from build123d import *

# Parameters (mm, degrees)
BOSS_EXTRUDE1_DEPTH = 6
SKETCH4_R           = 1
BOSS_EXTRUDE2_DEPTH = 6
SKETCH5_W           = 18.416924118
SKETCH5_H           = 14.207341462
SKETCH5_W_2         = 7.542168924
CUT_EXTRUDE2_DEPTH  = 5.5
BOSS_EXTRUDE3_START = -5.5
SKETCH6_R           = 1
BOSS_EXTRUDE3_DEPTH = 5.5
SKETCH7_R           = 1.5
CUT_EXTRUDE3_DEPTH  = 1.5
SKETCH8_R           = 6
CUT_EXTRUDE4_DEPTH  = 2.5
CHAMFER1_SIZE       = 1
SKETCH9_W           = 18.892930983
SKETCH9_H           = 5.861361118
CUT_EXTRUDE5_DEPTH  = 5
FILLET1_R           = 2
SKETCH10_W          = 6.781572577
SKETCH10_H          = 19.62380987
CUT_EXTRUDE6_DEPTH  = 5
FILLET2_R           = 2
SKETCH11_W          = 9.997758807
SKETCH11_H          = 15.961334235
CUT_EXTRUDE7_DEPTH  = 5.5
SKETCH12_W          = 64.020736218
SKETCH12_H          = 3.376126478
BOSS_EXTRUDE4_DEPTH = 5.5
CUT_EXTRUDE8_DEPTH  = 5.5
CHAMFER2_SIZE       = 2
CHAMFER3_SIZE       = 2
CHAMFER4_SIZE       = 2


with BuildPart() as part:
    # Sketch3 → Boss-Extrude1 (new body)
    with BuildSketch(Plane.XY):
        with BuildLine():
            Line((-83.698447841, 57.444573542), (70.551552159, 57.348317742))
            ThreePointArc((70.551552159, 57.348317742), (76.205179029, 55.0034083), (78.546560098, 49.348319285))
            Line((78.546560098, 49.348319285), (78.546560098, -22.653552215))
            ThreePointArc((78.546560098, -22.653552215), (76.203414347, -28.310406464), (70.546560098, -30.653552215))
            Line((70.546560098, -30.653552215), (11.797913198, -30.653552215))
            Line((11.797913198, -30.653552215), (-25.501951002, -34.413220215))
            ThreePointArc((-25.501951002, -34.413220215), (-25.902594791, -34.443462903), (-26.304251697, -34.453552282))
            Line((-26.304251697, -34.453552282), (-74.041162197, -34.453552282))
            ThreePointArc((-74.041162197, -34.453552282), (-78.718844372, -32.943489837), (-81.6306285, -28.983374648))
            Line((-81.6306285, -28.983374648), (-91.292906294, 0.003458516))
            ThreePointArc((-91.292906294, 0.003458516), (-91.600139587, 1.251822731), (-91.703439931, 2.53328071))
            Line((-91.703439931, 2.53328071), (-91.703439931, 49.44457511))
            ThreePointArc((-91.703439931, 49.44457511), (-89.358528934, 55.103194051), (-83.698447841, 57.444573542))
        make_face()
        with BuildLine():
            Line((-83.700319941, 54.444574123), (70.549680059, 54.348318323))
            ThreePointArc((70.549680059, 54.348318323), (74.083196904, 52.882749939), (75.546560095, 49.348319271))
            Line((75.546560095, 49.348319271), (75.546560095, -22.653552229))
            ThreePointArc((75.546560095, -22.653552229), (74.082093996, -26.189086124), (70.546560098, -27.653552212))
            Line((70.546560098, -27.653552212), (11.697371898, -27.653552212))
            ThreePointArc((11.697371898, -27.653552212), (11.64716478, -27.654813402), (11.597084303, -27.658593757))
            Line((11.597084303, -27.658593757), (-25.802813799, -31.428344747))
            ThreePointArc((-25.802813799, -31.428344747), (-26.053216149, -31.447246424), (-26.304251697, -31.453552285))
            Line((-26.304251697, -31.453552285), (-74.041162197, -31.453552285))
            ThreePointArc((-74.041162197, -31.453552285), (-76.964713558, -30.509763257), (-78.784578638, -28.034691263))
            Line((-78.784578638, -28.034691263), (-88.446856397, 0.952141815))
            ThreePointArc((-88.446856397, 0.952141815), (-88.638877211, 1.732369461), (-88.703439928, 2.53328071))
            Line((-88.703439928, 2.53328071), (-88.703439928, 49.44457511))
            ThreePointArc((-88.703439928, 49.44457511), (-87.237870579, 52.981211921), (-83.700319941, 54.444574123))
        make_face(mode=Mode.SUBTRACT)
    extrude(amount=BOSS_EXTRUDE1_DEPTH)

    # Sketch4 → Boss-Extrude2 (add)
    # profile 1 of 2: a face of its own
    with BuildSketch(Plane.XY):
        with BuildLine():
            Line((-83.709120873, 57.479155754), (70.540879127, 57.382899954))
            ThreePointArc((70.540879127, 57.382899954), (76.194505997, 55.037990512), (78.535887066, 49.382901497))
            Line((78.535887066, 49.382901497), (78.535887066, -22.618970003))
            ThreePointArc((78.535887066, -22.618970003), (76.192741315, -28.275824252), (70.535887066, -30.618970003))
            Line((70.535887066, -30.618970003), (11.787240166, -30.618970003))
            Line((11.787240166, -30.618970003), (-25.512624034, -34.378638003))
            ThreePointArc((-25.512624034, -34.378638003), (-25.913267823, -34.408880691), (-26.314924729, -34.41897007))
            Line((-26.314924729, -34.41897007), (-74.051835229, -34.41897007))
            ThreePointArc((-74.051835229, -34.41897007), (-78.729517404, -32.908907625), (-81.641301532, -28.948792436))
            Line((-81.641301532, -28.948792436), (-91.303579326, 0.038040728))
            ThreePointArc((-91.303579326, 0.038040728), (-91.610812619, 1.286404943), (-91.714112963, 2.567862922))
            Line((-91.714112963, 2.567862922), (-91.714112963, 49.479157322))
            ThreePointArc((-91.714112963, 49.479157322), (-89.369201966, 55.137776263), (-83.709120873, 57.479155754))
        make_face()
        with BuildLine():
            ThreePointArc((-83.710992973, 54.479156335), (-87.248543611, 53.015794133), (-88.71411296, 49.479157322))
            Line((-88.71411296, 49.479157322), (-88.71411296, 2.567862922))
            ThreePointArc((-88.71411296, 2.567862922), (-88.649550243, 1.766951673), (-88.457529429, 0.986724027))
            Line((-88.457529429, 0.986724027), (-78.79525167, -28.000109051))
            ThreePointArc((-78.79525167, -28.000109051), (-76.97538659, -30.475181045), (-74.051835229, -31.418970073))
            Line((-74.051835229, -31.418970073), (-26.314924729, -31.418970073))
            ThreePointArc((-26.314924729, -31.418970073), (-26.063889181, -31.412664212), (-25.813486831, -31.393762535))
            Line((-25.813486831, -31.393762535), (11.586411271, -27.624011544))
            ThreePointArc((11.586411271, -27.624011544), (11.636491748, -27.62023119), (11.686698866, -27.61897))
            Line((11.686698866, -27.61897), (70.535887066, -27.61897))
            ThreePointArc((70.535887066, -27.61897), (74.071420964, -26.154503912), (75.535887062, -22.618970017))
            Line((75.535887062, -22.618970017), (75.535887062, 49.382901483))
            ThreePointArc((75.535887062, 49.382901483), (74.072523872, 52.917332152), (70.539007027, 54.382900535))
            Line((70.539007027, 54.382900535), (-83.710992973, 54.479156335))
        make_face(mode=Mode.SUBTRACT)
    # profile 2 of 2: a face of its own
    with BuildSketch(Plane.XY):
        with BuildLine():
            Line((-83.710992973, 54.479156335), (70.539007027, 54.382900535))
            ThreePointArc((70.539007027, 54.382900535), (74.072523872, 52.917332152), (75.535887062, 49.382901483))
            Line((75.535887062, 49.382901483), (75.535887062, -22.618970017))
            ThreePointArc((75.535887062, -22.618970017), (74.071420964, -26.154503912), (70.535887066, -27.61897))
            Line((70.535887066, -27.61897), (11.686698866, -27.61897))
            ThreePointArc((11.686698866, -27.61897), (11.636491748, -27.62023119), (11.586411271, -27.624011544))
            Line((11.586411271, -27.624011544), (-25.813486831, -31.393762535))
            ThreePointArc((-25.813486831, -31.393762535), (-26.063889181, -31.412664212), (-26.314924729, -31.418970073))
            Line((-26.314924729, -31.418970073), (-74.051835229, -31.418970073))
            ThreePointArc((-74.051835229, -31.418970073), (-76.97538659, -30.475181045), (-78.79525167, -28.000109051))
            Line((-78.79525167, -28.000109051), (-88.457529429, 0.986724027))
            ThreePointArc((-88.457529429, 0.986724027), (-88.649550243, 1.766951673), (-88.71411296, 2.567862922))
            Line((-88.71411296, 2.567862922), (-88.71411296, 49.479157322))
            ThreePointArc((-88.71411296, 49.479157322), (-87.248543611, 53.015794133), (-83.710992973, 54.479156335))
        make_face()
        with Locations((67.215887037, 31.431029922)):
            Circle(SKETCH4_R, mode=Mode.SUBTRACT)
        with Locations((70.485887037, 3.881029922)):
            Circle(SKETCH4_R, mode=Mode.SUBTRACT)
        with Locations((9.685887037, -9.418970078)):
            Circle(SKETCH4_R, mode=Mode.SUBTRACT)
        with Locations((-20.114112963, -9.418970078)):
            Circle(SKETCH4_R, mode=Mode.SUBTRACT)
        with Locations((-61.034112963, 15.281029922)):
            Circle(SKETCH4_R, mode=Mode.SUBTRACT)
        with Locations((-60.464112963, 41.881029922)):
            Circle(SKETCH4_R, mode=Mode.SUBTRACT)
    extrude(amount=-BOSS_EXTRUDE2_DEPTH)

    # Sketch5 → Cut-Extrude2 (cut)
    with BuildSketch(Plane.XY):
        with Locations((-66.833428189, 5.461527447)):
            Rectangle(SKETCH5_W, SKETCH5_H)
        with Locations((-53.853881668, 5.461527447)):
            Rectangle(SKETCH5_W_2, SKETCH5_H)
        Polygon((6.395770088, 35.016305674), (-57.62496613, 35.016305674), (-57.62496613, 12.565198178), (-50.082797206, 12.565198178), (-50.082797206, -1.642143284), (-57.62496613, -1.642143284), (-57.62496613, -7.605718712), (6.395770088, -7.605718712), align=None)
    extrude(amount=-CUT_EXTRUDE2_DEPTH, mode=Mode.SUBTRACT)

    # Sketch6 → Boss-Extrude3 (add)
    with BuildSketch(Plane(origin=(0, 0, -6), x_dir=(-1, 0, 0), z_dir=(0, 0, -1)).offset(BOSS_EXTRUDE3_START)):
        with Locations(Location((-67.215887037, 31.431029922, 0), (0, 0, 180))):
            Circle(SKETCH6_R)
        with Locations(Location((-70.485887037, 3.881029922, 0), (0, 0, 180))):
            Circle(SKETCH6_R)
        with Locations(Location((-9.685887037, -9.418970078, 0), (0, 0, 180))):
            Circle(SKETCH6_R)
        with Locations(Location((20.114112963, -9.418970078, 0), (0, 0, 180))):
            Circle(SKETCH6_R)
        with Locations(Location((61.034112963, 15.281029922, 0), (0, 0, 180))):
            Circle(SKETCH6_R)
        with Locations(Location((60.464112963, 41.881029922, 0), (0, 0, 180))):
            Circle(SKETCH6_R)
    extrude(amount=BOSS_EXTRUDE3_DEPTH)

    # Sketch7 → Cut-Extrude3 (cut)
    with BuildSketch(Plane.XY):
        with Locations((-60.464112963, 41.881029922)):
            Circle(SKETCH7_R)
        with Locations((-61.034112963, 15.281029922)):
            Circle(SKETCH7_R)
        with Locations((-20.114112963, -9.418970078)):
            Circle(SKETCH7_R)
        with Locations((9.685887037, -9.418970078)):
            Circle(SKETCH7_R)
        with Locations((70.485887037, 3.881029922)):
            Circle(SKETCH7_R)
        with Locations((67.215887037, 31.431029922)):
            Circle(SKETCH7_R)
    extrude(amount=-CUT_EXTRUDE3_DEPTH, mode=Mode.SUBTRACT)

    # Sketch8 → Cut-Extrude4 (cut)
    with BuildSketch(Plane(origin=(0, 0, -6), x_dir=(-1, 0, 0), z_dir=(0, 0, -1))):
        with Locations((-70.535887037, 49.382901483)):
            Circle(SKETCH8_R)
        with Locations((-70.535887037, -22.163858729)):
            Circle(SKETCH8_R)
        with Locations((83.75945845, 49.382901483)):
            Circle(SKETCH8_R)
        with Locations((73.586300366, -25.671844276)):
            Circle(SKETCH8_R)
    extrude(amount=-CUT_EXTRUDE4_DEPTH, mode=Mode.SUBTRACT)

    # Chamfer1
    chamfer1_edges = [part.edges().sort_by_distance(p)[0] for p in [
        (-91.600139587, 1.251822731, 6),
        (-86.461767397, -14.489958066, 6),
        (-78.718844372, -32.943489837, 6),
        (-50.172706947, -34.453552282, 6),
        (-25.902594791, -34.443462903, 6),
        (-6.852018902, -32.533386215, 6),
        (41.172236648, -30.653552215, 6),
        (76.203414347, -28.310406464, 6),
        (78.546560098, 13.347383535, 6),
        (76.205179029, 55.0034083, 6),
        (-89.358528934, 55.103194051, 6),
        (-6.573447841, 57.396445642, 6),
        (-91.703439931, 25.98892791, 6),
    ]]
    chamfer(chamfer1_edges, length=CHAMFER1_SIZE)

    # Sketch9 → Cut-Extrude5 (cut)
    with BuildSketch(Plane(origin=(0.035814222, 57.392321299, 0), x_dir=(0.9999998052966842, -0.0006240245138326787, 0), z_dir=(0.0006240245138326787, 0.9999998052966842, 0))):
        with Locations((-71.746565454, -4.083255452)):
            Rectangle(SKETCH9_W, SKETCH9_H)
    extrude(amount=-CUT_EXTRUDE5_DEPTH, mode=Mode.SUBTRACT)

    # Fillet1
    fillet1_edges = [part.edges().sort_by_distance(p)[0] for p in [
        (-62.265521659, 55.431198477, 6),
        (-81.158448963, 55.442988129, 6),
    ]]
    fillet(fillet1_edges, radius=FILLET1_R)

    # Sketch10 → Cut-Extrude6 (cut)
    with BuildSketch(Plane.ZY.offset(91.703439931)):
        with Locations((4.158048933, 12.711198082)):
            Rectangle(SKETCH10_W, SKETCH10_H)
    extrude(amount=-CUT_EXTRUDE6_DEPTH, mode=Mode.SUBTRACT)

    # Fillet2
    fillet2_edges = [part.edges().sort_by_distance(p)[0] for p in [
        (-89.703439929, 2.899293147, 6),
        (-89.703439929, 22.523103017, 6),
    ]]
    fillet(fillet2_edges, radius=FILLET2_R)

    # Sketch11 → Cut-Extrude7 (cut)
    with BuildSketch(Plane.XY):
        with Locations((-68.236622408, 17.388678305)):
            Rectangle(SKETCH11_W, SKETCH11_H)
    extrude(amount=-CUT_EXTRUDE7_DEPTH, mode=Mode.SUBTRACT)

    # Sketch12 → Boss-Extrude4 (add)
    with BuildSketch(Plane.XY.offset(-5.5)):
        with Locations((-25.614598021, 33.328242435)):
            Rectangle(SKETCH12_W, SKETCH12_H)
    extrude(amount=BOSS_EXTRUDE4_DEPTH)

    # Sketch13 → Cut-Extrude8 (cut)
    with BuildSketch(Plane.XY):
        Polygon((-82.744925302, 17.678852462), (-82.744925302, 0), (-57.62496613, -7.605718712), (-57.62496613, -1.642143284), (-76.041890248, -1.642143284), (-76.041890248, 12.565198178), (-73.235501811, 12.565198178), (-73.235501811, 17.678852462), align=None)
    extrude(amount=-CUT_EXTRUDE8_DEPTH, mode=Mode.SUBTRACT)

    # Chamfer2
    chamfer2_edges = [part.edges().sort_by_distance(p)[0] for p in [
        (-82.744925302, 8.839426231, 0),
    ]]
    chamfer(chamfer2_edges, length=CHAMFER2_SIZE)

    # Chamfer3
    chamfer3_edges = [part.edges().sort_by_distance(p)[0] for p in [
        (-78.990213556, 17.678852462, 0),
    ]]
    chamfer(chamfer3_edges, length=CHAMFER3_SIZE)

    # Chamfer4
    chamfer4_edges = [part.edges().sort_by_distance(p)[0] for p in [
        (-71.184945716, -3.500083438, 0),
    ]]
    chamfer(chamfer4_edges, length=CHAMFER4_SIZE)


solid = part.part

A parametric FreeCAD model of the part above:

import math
import FreeCAD as App
import Part
import Sketcher
from FreeCAD import Vector
Q = App.Units.Quantity


def edges_at(feature, points):
    """Names of the edges that pass closest to the given points."""
    edges = feature.Shape.Edges
    near = lambda p: min(range(len(edges)), key=lambda i: edges[i].distToShape(Part.Vertex(*p))[0])
    return sorted({f"Edge{near(p) + 1}" for p in points})


def add_polygon(sketch, points):
    """Adds a closed chain of lines whose ends are joined by coincident constraints."""
    first, n = sketch.GeometryCount, len(points)
    for a, b in zip(points, points[1:] + points[:1]):
        sketch.addGeometry(Part.LineSegment(App.Vector(*a, 0), App.Vector(*b, 0)), False)
    for i in range(n):
        sketch.addConstraint(Sketcher.Constraint("Coincident", first + i, 2, first + (i + 1) % n, 1))

doc = App.newDocument("Part")
params = doc.addObject("Spreadsheet::Sheet", "Params")
for row, (alias, value) in enumerate([
    ("sketch1_radius", "8 mm"),
    ("sketch1_radius2", "5 mm"),
    ("sketch1_radius3", "1 mm"),
    ("pad1_length", "6 mm"),
    ("sketch2_diameter", "2 mm"),
    ("sketch2_radius", "8 mm"),
    ("pad2_length", "6 mm"),
    ("pocket1_length", "5.5 mm"),
    ("sketch4_diameter", "2 mm"),
    ("pad3_length", "5.5 mm"),
    ("sketch5_diameter", "3 mm"),
    ("pocket2_length", "1.5 mm"),
    ("sketch6_diameter", "12 mm"),
    ("pocket3_length", "2.5 mm"),
    ("chamfer_size", "1 mm"),
    ("pocket4_length", "5 mm"),
    ("fillet_radius", "2 mm"),
    ("pocket5_length", "5 mm"),
    ("fillet2_radius", "2 mm"),
    ("pocket6_length", "5.5 mm"),
    ("pad4_length", "5.5 mm"),
    ("pocket7_length", "5.5 mm"),
    ("chamfer2_size", "2 mm"),
    ("chamfer3_size", "2 mm"),
    ("chamfer4_size", "2 mm"),
], start=1):
    params.set(f"A{row}", alias)
    params.set(f"B{row}", "=" + value)
    params.setAlias(f"B{row}", alias)

body = doc.addObject("PartDesign::Body", "Body")

# Sketch on XY plane
sketch1 = body.newObject("Sketcher::SketchObject", "Sketch")
sketch1.AttachmentSupport = (doc.getObject("XY_Plane"), [""])
sketch1.MapMode = "FlatFace"
sketch1.addGeometry(Part.LineSegment(Vector(70.551552, 57.348318, 0), Vector(-83.698448, 57.444574, 0)), False)
sketch1.addGeometry(Part.ArcOfCircle(Part.Circle(Vector(-83.70344, 49.444575, 0), Vector(0, 0, 1), 8), math.radians(89.964247), math.radians(180)), False)
sketch1.addGeometry(Part.LineSegment(Vector(-91.70344, 49.444575, 0), Vector(-91.70344, 2.533281, 0)), False)
sketch1.addGeometry(Part.ArcOfCircle(Part.Circle(Vector(-83.70344, 2.533281, 0), Vector(0, 0, 1), 8), math.radians(180), math.radians(198.434949)), False)
sketch1.addGeometry(Part.LineSegment(Vector(-91.292906, 0.003459, 0), Vector(-81.630629, -28.983375, 0)), False)
sketch1.addGeometry(Part.ArcOfCircle(Part.Circle(Vector(-74.041162, -26.453552, 0), Vector(0, 0, 1), 8), math.radians(-161.565049), math.radians(-90)), False)
sketch1.addGeometry(Part.LineSegment(Vector(-74.041162, -34.453552, 0), Vector(-26.304252, -34.453552, 0)), False)
sketch1.addGeometry(Part.ArcOfCircle(Part.Circle(Vector(-26.304252, -26.453552, 0), Vector(0, 0, 1), 8), math.radians(-90), math.radians(-84.244269)), False)
sketch1.addGeometry(Part.LineSegment(Vector(-25.501951, -34.41322, 0), Vector(11.797913, -30.653552, 0)), False)
sketch1.addGeometry(Part.LineSegment(Vector(11.797913, -30.653552, 0), Vector(70.54656, -30.653552, 0)), False)
sketch1.addGeometry(Part.ArcOfCircle(Part.Circle(Vector(70.54656, -22.653552, 0), Vector(0, 0, 1), 8), math.radians(-90), math.radians(0)), False)
sketch1.addGeometry(Part.LineSegment(Vector(78.54656, -22.653552, 0), Vector(78.54656, 49.348319, 0)), False)
sketch1.addGeometry(Part.ArcOfCircle(Part.Circle(Vector(70.54656, 49.348319, 0), Vector(0, 0, 1), 8), math.radians(0), math.radians(89.964247)), False)
sketch1.addGeometry(Part.LineSegment(Vector(-83.70032, 54.444574, 0), Vector(70.54968, 54.348318, 0)), False)
sketch1.addGeometry(Part.ArcOfCircle(Part.Circle(Vector(70.54656, 49.348319, 0), Vector(0, 0, 1), 5), math.radians(0), math.radians(89.964248)), False)
sketch1.addGeometry(Part.LineSegment(Vector(75.54656, 49.348319, 0), Vector(75.54656, -22.653552, 0)), False)
sketch1.addGeometry(Part.ArcOfCircle(Part.Circle(Vector(70.54656, -22.653552, 0), Vector(0, 0, 1), 5), math.radians(-90), math.radians(0)), False)
sketch1.addGeometry(Part.LineSegment(Vector(70.54656, -27.653552, 0), Vector(11.697372, -27.653552, 0)), False)
sketch1.addGeometry(Part.ArcOfCircle(Part.Circle(Vector(11.697372, -28.653552, 0), Vector(0, 0, 1), 1), math.radians(90.000019), math.radians(95.755753)), False)
sketch1.addGeometry(Part.LineSegment(Vector(11.597084, -27.658594, 0), Vector(-25.802814, -31.428345, 0)), False)
sketch1.addGeometry(Part.ArcOfCircle(Part.Circle(Vector(-26.304252, -26.453552, 0), Vector(0, 0, 1), 5), math.radians(-90), math.radians(-84.244269)), False)
sketch1.addGeometry(Part.LineSegment(Vector(-26.304252, -31.453552, 0), Vector(-74.041162, -31.453552, 0)), False)
sketch1.addGeometry(Part.ArcOfCircle(Part.Circle(Vector(-74.041162, -26.453552, 0), Vector(0, 0, 1), 5), math.radians(-161.565049), math.radians(-90)), False)
sketch1.addGeometry(Part.LineSegment(Vector(-78.784579, -28.034691, 0), Vector(-88.446856, 0.952142, 0)), False)
sketch1.addGeometry(Part.ArcOfCircle(Part.Circle(Vector(-83.70344, 2.533281, 0), Vector(0, 0, 1), 5), math.radians(180), math.radians(198.43495)), False)
sketch1.addGeometry(Part.LineSegment(Vector(-88.70344, 2.533281, 0), Vector(-88.70344, 49.444575, 0)), False)
sketch1.addGeometry(Part.ArcOfCircle(Part.Circle(Vector(-83.70344, 49.444575, 0), Vector(0, 0, 1), 5), math.radians(89.964247), math.radians(180)), False)
sketch1.addConstraint(Sketcher.Constraint("Tangent", 0, 2, 1, 1))
sketch1.addConstraint(Sketcher.Constraint("Tangent", 1, 2, 2, 1))
sketch1.addConstraint(Sketcher.Constraint("Tangent", 2, 2, 3, 1))
sketch1.addConstraint(Sketcher.Constraint("Tangent", 3, 2, 4, 1))
sketch1.addConstraint(Sketcher.Constraint("Tangent", 4, 2, 5, 1))
sketch1.addConstraint(Sketcher.Constraint("Tangent", 5, 2, 6, 1))
sketch1.addConstraint(Sketcher.Constraint("Tangent", 6, 2, 7, 1))
sketch1.addConstraint(Sketcher.Constraint("Tangent", 7, 2, 8, 1))
sketch1.addConstraint(Sketcher.Constraint("Coincident", 8, 2, 9, 1))
sketch1.addConstraint(Sketcher.Constraint("Tangent", 9, 2, 10, 1))
sketch1.addConstraint(Sketcher.Constraint("Tangent", 10, 2, 11, 1))
sketch1.addConstraint(Sketcher.Constraint("Tangent", 11, 2, 12, 1))
sketch1.addConstraint(Sketcher.Constraint("Tangent", 12, 2, 0, 1))
sketch1.addConstraint(Sketcher.Constraint("Tangent", 13, 2, 14, 2))
sketch1.addConstraint(Sketcher.Constraint("Tangent", 14, 1, 15, 1))
sketch1.addConstraint(Sketcher.Constraint("Tangent", 15, 2, 16, 2))
sketch1.addConstraint(Sketcher.Constraint("Tangent", 16, 1, 17, 1))
sketch1.addConstraint(Sketcher.Constraint("Tangent", 17, 2, 18, 1))
sketch1.addConstraint(Sketcher.Constraint("Tangent", 18, 2, 19, 1))
sketch1.addConstraint(Sketcher.Constraint("Tangent", 19, 2, 20, 2))
sketch1.addConstraint(Sketcher.Constraint("Tangent", 20, 1, 21, 1))
sketch1.addConstraint(Sketcher.Constraint("Tangent", 21, 2, 22, 2))
sketch1.addConstraint(Sketcher.Constraint("Tangent", 22, 1, 23, 1))
sketch1.addConstraint(Sketcher.Constraint("Tangent", 23, 2, 24, 2))
sketch1.addConstraint(Sketcher.Constraint("Tangent", 24, 1, 25, 1))
sketch1.addConstraint(Sketcher.Constraint("Tangent", 25, 2, 26, 2))
sketch1.addConstraint(Sketcher.Constraint("Tangent", 26, 1, 13, 1))
sketch1.addConstraint(Sketcher.Constraint("Vertical", 2))
sketch1.addConstraint(Sketcher.Constraint("Horizontal", 6))
sketch1.addConstraint(Sketcher.Constraint("Horizontal", 9))
sketch1.addConstraint(Sketcher.Constraint("Vertical", 11))
sketch1.addConstraint(Sketcher.Constraint("Vertical", 15))
sketch1.addConstraint(Sketcher.Constraint("Horizontal", 17))
sketch1.addConstraint(Sketcher.Constraint("Horizontal", 21))
sketch1.addConstraint(Sketcher.Constraint("Vertical", 25))
sketch1.addConstraint(Sketcher.Constraint("Coincident", 14, 3, 12, 3))
sketch1.addConstraint(Sketcher.Constraint("Coincident", 16, 3, 10, 3))
sketch1.addConstraint(Sketcher.Constraint("Coincident", 20, 3, 7, 3))
sketch1.addConstraint(Sketcher.Constraint("Coincident", 22, 3, 5, 3))
sketch1.addConstraint(Sketcher.Constraint("Coincident", 24, 3, 3, 3))
sketch1.addConstraint(Sketcher.Constraint("Coincident", 26, 3, 1, 3))
sketch1.addConstraint(Sketcher.Constraint("Equal", 1, 3))
sketch1.addConstraint(Sketcher.Constraint("Equal", 3, 5))
sketch1.addConstraint(Sketcher.Constraint("Equal", 5, 7))
sketch1.addConstraint(Sketcher.Constraint("Equal", 7, 10))
sketch1.addConstraint(Sketcher.Constraint("Equal", 10, 12))
sketch1.addConstraint(Sketcher.Constraint("Equal", 16, 20))
sketch1.addConstraint(Sketcher.Constraint("Equal", 22, 24))
sketch1.addConstraint(Sketcher.Constraint("Parallel", 8, 19))
sketch1.addConstraint(Sketcher.Constraint("Radius", 1, Q("8 mm")))
sketch1.addConstraint(Sketcher.Constraint("Radius", 14, Q("5 mm")))
sketch1.addConstraint(Sketcher.Constraint("Radius", 18, Q("1 mm")))
sketch1.addConstraint(Sketcher.Constraint("DistanceY", 7, 3, 10, 3, Q("3.8 mm")))
sketch1.addConstraint(Sketcher.Constraint("DistanceX", 3, 3, 10, 3, Q("154.25 mm")))
sketch1.addConstraint(Sketcher.Constraint("DistanceX", 6, 1, 6, 2, Q("47.736911 mm")))
sketch1.addConstraint(Sketcher.Constraint("DistanceX", 17, 2, 17, 1, Q("58.849188 mm")))
sketch1.addConstraint(Sketcher.Constraint("DistanceY", 11, 1, 11, 2, Q("72.001872 mm")))
sketch1.addConstraint(Sketcher.Constraint("DistanceX", 19, 2, 18, 2, Q("37.399898 mm")))
sketch1.addConstraint(Sketcher.Constraint("DistanceY", 2, 2, 2, 1, Q("46.911294 mm")))
sketch1.addConstraint(Sketcher.Constraint("DistanceX", 1, 3, -1, 1, Q("83.70344 mm")))
sketch1.addConstraint(Sketcher.Constraint("DistanceY", -1, 1, 3, 3, Q("2.533281 mm")))
sketch1.addConstraint(Sketcher.Constraint("DistanceY", -1, 1, 12, 3, Q("49.348319 mm")))
sketch1.setExpression("Constraints[49]", "Params.sketch1_radius")
sketch1.setExpression("Constraints[50]", "Params.sketch1_radius2")
sketch1.setExpression("Constraints[51]", "Params.sketch1_radius3")
pad1 = body.newObject("PartDesign::Pad", "Pad")
pad1.Profile = sketch1
pad1.setExpression("Length", "Params.pad1_length")

# Sketch on XY plane
sketch2 = body.newObject("Sketcher::SketchObject", "Sketch001")
sketch2.AttachmentSupport = (doc.getObject("XY_Plane"), [""])
sketch2.MapMode = "FlatFace"
sketch2.addGeometry(Part.LineSegment(Vector(70.540879, 57.3829, 0), Vector(-83.709121, 57.479156, 0)), False)
sketch2.addGeometry(Part.ArcOfCircle(Part.Circle(Vector(-83.714113, 49.479157, 0), Vector(0, 0, 1), 8), math.radians(89.964247), math.radians(180)), False)
sketch2.addGeometry(Part.LineSegment(Vector(-91.714113, 49.479157, 0), Vector(-91.714113, 2.567863, 0)), False)
sketch2.addGeometry(Part.ArcOfCircle(Part.Circle(Vector(-83.714113, 2.567863, 0), Vector(0, 0, 1), 8), math.radians(180), math.radians(198.434949)), False)
sketch2.addGeometry(Part.LineSegment(Vector(-91.303579, 0.038041, 0), Vector(-81.641302, -28.948792, 0)), False)
sketch2.addGeometry(Part.ArcOfCircle(Part.Circle(Vector(-74.051835, -26.41897, 0), Vector(0, 0, 1), 8), math.radians(-161.565049), math.radians(-90)), False)
sketch2.addGeometry(Part.LineSegment(Vector(-74.051835, -34.41897, 0), Vector(-26.314925, -34.41897, 0)), False)
sketch2.addGeometry(Part.ArcOfCircle(Part.Circle(Vector(-26.314925, -26.41897, 0), Vector(0, 0, 1), 8), math.radians(-90), math.radians(-84.244269)), False)
sketch2.addGeometry(Part.LineSegment(Vector(-25.512624, -34.378638, 0), Vector(11.78724, -30.61897, 0)), False)
sketch2.addGeometry(Part.LineSegment(Vector(11.78724, -30.61897, 0), Vector(70.535887, -30.61897, 0)), False)
sketch2.addGeometry(Part.ArcOfCircle(Part.Circle(Vector(70.535887, -22.61897, 0), Vector(0, 0, 1), 8), math.radians(-90), math.radians(0)), False)
sketch2.addGeometry(Part.LineSegment(Vector(78.535887, -22.61897, 0), Vector(78.535887, 49.382901, 0)), False)
sketch2.addGeometry(Part.ArcOfCircle(Part.Circle(Vector(70.535887, 49.382901, 0), Vector(0, 0, 1), 8), math.radians(0), math.radians(89.964247)), False)
sketch2.addGeometry(Part.Circle(Vector(-60.464113, 41.88103, 0), Vector(0, 0, 1), 1), False)
sketch2.addGeometry(Part.Circle(Vector(-20.114113, -9.41897, 0), Vector(0, 0, 1), 1), False)
sketch2.addGeometry(Part.Circle(Vector(67.215887, 31.43103, 0), Vector(0, 0, 1), 1), False)
sketch2.addGeometry(Part.Circle(Vector(9.685887, -9.41897, 0), Vector(0, 0, 1), 1), False)
sketch2.addGeometry(Part.Circle(Vector(-61.034113, 15.28103, 0), Vector(0, 0, 1), 1), False)
sketch2.addGeometry(Part.Circle(Vector(70.485887, 3.88103, 0), Vector(0, 0, 1), 1), False)
sketch2.addConstraint(Sketcher.Constraint("Tangent", 0, 2, 1, 1))
sketch2.addConstraint(Sketcher.Constraint("Tangent", 1, 2, 2, 1))
sketch2.addConstraint(Sketcher.Constraint("Tangent", 2, 2, 3, 1))
sketch2.addConstraint(Sketcher.Constraint("Tangent", 3, 2, 4, 1))
sketch2.addConstraint(Sketcher.Constraint("Tangent", 4, 2, 5, 1))
sketch2.addConstraint(Sketcher.Constraint("Tangent", 5, 2, 6, 1))
sketch2.addConstraint(Sketcher.Constraint("Tangent", 6, 2, 7, 1))
sketch2.addConstraint(Sketcher.Constraint("Tangent", 7, 2, 8, 1))
sketch2.addConstraint(Sketcher.Constraint("Coincident", 8, 2, 9, 1))
sketch2.addConstraint(Sketcher.Constraint("Tangent", 9, 2, 10, 1))
sketch2.addConstraint(Sketcher.Constraint("Tangent", 10, 2, 11, 1))
sketch2.addConstraint(Sketcher.Constraint("Tangent", 11, 2, 12, 1))
sketch2.addConstraint(Sketcher.Constraint("Tangent", 12, 2, 0, 1))
sketch2.addConstraint(Sketcher.Constraint("Vertical", 2))
sketch2.addConstraint(Sketcher.Constraint("Horizontal", 6))
sketch2.addConstraint(Sketcher.Constraint("Horizontal", 9))
sketch2.addConstraint(Sketcher.Constraint("Vertical", 11))
sketch2.addConstraint(Sketcher.Constraint("Equal", 1, 3))
sketch2.addConstraint(Sketcher.Constraint("Equal", 3, 5))
sketch2.addConstraint(Sketcher.Constraint("Equal", 5, 7))
sketch2.addConstraint(Sketcher.Constraint("Equal", 7, 10))
sketch2.addConstraint(Sketcher.Constraint("Equal", 10, 12))
sketch2.addConstraint(Sketcher.Constraint("Equal", 13, 14))
sketch2.addConstraint(Sketcher.Constraint("Equal", 14, 15))
sketch2.addConstraint(Sketcher.Constraint("Equal", 15, 16))
sketch2.addConstraint(Sketcher.Constraint("Equal", 16, 17))
sketch2.addConstraint(Sketcher.Constraint("Equal", 17, 18))
sketch2.addConstraint(Sketcher.Constraint("Horizontal", 14, 3, 16, 3))
sketch2.addConstraint(Sketcher.Constraint("Diameter", 13, Q("2 mm")))
sketch2.addConstraint(Sketcher.Constraint("Radius", 1, Q("8 mm")))
sketch2.addConstraint(Sketcher.Constraint("DistanceX", 13, 3, 12, 3, Q("131 mm")))
sketch2.addConstraint(Sketcher.Constraint("DistanceY", 7, 3, 14, 3, Q("17 mm")))
sketch2.addConstraint(Sketcher.Constraint("DistanceY", 7, 3, 10, 3, Q("3.8 mm")))
sketch2.addConstraint(Sketcher.Constraint("DistanceY", 5, 3, 13, 3, Q("68.3 mm")))
sketch2.addConstraint(Sketcher.Constraint("DistanceX", 3, 3, 14, 3, Q("63.6 mm")))
sketch2.addConstraint(Sketcher.Constraint("DistanceX", 14, 3, 16, 3, Q("29.8 mm")))
sketch2.addConstraint(Sketcher.Constraint("DistanceY", 17, 3, 13, 3, Q("26.6 mm")))
sketch2.addConstraint(Sketcher.Constraint("DistanceY", 10, 3, 18, 3, Q("26.5 mm")))
sketch2.addConstraint(Sketcher.Constraint("DistanceX", 16, 3, 18, 3, Q("60.8 mm")))
sketch2.addConstraint(Sketcher.Constraint("DistanceX", 3, 3, 10, 3, Q("154.25 mm")))
sketch2.addConstraint(Sketcher.Constraint("DistanceX", 15, 3, 12, 3, Q("3.32 mm")))
sketch2.addConstraint(Sketcher.Constraint("DistanceY", 10, 3, 15, 3, Q("54.05 mm")))
sketch2.addConstraint(Sketcher.Constraint("DistanceX", 3, 3, 17, 3, Q("22.68 mm")))
sketch2.addConstraint(Sketcher.Constraint("DistanceX", 6, 1, 6, 2, Q("47.736911 mm")))
sketch2.addConstraint(Sketcher.Constraint("DistanceY", 11, 1, 11, 2, Q("72.001871 mm")))
sketch2.addConstraint(Sketcher.Constraint("DistanceY", -1, 1, 12, 3, Q("49.382901 mm")))
sketch2.addConstraint(Sketcher.Constraint("DistanceX", 4, 2, -1, 1, Q("81.641302 mm")))
sketch2.addConstraint(Sketcher.Constraint("DistanceX", 9, 1, 9, 2, Q("58.748647 mm")))
sketch2.addConstraint(Sketcher.Constraint("DistanceY", 2, 2, 2, 1, Q("46.911294 mm")))
sketch2.addConstraint(Sketcher.Constraint("DistanceX", 0, 2, -1, 1, Q("83.709121 mm")))
sketch2.addConstraint(Sketcher.Constraint("DistanceX", 3, 2, -1, 1, Q("91.303579 mm")))
sketch2.setExpression("Constraints[28]", "Params.sketch2_diameter")
sketch2.setExpression("Constraints[29]", "Params.sketch2_radius")
pad2 = body.newObject("PartDesign::Pad", "Pad001")
pad2.Profile = sketch2
pad2.setExpression("Length", "Params.pad2_length")
pad2.Reversed = True

# Sketch on XY plane
sketch3 = body.newObject("Sketcher::SketchObject", "Sketch002")
sketch3.AttachmentSupport = (doc.getObject("XY_Plane"), [""])
sketch3.MapMode = "FlatFace"
add_polygon(sketch3, [(-76.04189, 12.565198), (-76.04189, -1.642143), (-57.624966, -1.642143), (-57.624966, -7.605719), (6.39577, -7.605719), (6.39577, 35.016306), (-57.624966, 35.016306), (-57.624966, 12.565198)])  # lines 0-7
sketch3.addConstraint(Sketcher.Constraint("Vertical", 0))
sketch3.addConstraint(Sketcher.Constraint("Horizontal", 1))
sketch3.addConstraint(Sketcher.Constraint("Vertical", 2))
sketch3.addConstraint(Sketcher.Constraint("Horizontal", 3))
sketch3.addConstraint(Sketcher.Constraint("Vertical", 4))
sketch3.addConstraint(Sketcher.Constraint("Horizontal", 5))
sketch3.addConstraint(Sketcher.Constraint("Vertical", 6))
sketch3.addConstraint(Sketcher.Constraint("Horizontal", 7))
sketch3.addConstraint(Sketcher.Constraint("Vertical", 2, 2, 5, 2))
sketch3.addConstraint(Sketcher.Constraint("DistanceY", 0, 2, 0, 1, Q("14.207341 mm")))
sketch3.addConstraint(Sketcher.Constraint("DistanceY", -1, 1, 6, 2, Q("12.565198 mm")))
sketch3.addConstraint(Sketcher.Constraint("DistanceX", 1, 1, 1, 2, Q("18.416924 mm")))
sketch3.addConstraint(Sketcher.Constraint("DistanceX", 3, 1, 3, 2, Q("64.020736 mm")))
sketch3.addConstraint(Sketcher.Constraint("DistanceY", 2, 2, 2, 1, Q("5.963575 mm")))
sketch3.addConstraint(Sketcher.Constraint("DistanceY", 4, 1, 4, 2, Q("42.622024 mm")))
sketch3.addConstraint(Sketcher.Constraint("DistanceX", 0, 2, -1, 1, Q("76.04189 mm")))
pocket1 = body.newObject("PartDesign::Pocket", "Pocket")
pocket1.Profile = sketch3
pocket1.setExpression("Length", "Params.pocket1_length")

# Sketch on XY plane
sketch4 = body.newObject("Sketcher::SketchObject", "Sketch003")
sketch4.AttachmentSupport = (doc.getObject("XY_Plane"), [""])
sketch4.MapMode = "FlatFace"
sketch4.AttachmentOffset = App.Placement(Vector(0, 0, -0.5), App.Rotation())
sketch4.addGeometry(Part.Circle(Vector(67.215887, 31.43103, 0), Vector(0, 0, 1), 1), False)
sketch4.addGeometry(Part.Circle(Vector(70.485887, 3.88103, 0), Vector(0, 0, 1), 1), False)
sketch4.addGeometry(Part.Circle(Vector(9.685887, -9.41897, 0), Vector(0, 0, 1), 1), False)
sketch4.addGeometry(Part.Circle(Vector(-20.114113, -9.41897, 0), Vector(0, 0, 1), 1), False)
sketch4.addGeometry(Part.Circle(Vector(-61.034113, 15.28103, 0), Vector(0, 0, 1), 1), False)
sketch4.addGeometry(Part.Circle(Vector(-60.464113, 41.88103, 0), Vector(0, 0, 1), 1), False)
sketch4.addConstraint(Sketcher.Constraint("Equal", 0, 1))
sketch4.addConstraint(Sketcher.Constraint("Equal", 1, 2))
sketch4.addConstraint(Sketcher.Constraint("Equal", 2, 3))
sketch4.addConstraint(Sketcher.Constraint("Equal", 3, 4))
sketch4.addConstraint(Sketcher.Constraint("Equal", 4, 5))
sketch4.addConstraint(Sketcher.Constraint("Horizontal", 2, 3, 3, 3))
sketch4.addConstraint(Sketcher.Constraint("Diameter", 0, Q("2 mm")))
sketch4.addConstraint(Sketcher.Constraint("DistanceY", 1, 3, 5, 3, Q("38 mm")))
sketch4.addConstraint(Sketcher.Constraint("DistanceX", 2, 3, 1, 3, Q("60.8 mm")))
sketch4.addConstraint(Sketcher.Constraint("DistanceY", 2, 3, 1, 3, Q("13.3 mm")))
sketch4.addConstraint(Sketcher.Constraint("DistanceX", 3, 3, 2, 3, Q("29.8 mm")))
sketch4.addConstraint(Sketcher.Constraint("DistanceY", 3, 3, 4, 3, Q("24.7 mm")))
sketch4.addConstraint(Sketcher.Constraint("DistanceX", 0, 3, 1, 3, Q("3.27 mm")))
sketch4.addConstraint(Sketcher.Constraint("DistanceY", 1, 3, 0, 3, Q("27.55 mm")))
sketch4.addConstraint(Sketcher.Constraint("DistanceX", 4, 3, 3, 3, Q("40.92 mm")))
sketch4.addConstraint(Sketcher.Constraint("DistanceX", 4, 3, 5, 3, Q("0.57 mm")))
sketch4.addConstraint(Sketcher.Constraint("DistanceY", -1, 1, 0, 3, Q("31.43103 mm")))
sketch4.addConstraint(Sketcher.Constraint("DistanceX", -1, 1, 0, 3, Q("67.215887 mm")))
sketch4.setExpression("Constraints[6]", "Params.sketch4_diameter")
pad3 = body.newObject("PartDesign::Pad", "Pad002")
pad3.Profile = sketch4
pad3.setExpression("Length", "Params.pad3_length")
pad3.Reversed = True

# Sketch on XY plane
sketch5 = body.newObject("Sketcher::SketchObject", "Sketch004")
sketch5.AttachmentSupport = (doc.getObject("XY_Plane"), [""])
sketch5.MapMode = "FlatFace"
sketch5.addGeometry(Part.Circle(Vector(-60.464113, 41.88103, 0), Vector(0, 0, 1), 1.5), False)
sketch5.addGeometry(Part.Circle(Vector(-61.034113, 15.28103, 0), Vector(0, 0, 1), 1.5), False)
sketch5.addGeometry(Part.Circle(Vector(-20.114113, -9.41897, 0), Vector(0, 0, 1), 1.5), False)
sketch5.addGeometry(Part.Circle(Vector(9.685887, -9.41897, 0), Vector(0, 0, 1), 1.5), False)
sketch5.addGeometry(Part.Circle(Vector(70.485887, 3.88103, 0), Vector(0, 0, 1), 1.5), False)
sketch5.addGeometry(Part.Circle(Vector(67.215887, 31.43103, 0), Vector(0, 0, 1), 1.5), False)
sketch5.addConstraint(Sketcher.Constraint("Equal", 0, 1))
sketch5.addConstraint(Sketcher.Constraint("Equal", 1, 2))
sketch5.addConstraint(Sketcher.Constraint("Equal", 2, 3))
sketch5.addConstraint(Sketcher.Constraint("Equal", 3, 4))
sketch5.addConstraint(Sketcher.Constraint("Equal", 4, 5))
sketch5.addConstraint(Sketcher.Constraint("Horizontal", 2, 3, 3, 3))
sketch5.addConstraint(Sketcher.Constraint("Diameter", 0, Q("3 mm")))
sketch5.addConstraint(Sketcher.Constraint("DistanceY", 4, 3, 0, 3, Q("38 mm")))
sketch5.addConstraint(Sketcher.Constraint("DistanceY", 1, 3, 0, 3, Q("26.6 mm")))
sketch5.addConstraint(Sketcher.Constraint("DistanceY", 2, 3, 1, 3, Q("24.7 mm")))
sketch5.addConstraint(Sketcher.Constraint("DistanceX", 2, 3, 3, 3, Q("29.8 mm")))
sketch5.addConstraint(Sketcher.Constraint("DistanceX", 3, 3, 4, 3, Q("60.8 mm")))
sketch5.addConstraint(Sketcher.Constraint("DistanceX", 1, 3, 0, 3, Q("0.57 mm")))
sketch5.addConstraint(Sketcher.Constraint("DistanceX", 1, 3, 2, 3, Q("40.92 mm")))
sketch5.addConstraint(Sketcher.Constraint("DistanceX", 5, 3, 4, 3, Q("3.27 mm")))
sketch5.addConstraint(Sketcher.Constraint("DistanceY", 4, 3, 5, 3, Q("27.55 mm")))
sketch5.addConstraint(Sketcher.Constraint("DistanceY", -1, 1, 0, 3, Q("41.88103 mm")))
sketch5.addConstraint(Sketcher.Constraint("DistanceX", 0, 3, -1, 1, Q("60.464113 mm")))
sketch5.setExpression("Constraints[6]", "Params.sketch5_diameter")
pocket2 = body.newObject("PartDesign::Pocket", "Pocket001")
pocket2.Profile = sketch5
pocket2.setExpression("Length", "Params.pocket2_length")

# Sketch on XY plane
sketch6 = body.newObject("Sketcher::SketchObject", "Sketch005")
sketch6.AttachmentSupport = (doc.getObject("XY_Plane"), [""])
sketch6.MapMode = "FlatFace"
sketch6.AttachmentOffset = App.Placement(Vector(0, 0, -6), App.Rotation())
sketch6.addGeometry(Part.Circle(Vector(70.535887, 49.382901, 0), Vector(0, 0, 1), 6), False)
sketch6.addGeometry(Part.Circle(Vector(70.535887, -22.163859, 0), Vector(0, 0, 1), 6), False)
sketch6.addGeometry(Part.Circle(Vector(-83.759458, 49.382901, 0), Vector(0, 0, 1), 6), False)
sketch6.addGeometry(Part.Circle(Vector(-73.5863, -25.671844, 0), Vector(0, 0, 1), 6), False)
sketch6.addConstraint(Sketcher.Constraint("Equal", 0, 1))
sketch6.addConstraint(Sketcher.Constraint("Equal", 1, 2))
sketch6.addConstraint(Sketcher.Constraint("Equal", 2, 3))
sketch6.addConstraint(Sketcher.Constraint("Horizontal", 0, 3, 2, 3))
sketch6.addConstraint(Sketcher.Constraint("Vertical", 0, 3, 1, 3))
sketch6.addConstraint(Sketcher.Constraint("Diameter", 0, Q("12 mm")))
sketch6.addConstraint(Sketcher.Constraint("DistanceY", -1, 1, 0, 3, Q("49.382901 mm")))
sketch6.addConstraint(Sketcher.Constraint("DistanceX", 3, 3, -1, 1, Q("73.5863 mm")))
sketch6.addConstraint(Sketcher.Constraint("DistanceY", 1, 3, -1, 1, Q("22.163859 mm")))
sketch6.addConstraint(Sketcher.Constraint("DistanceX", 2, 3, -1, 1, Q("83.759458 mm")))
sketch6.addConstraint(Sketcher.Constraint("DistanceX", -1, 1, 0, 3, Q("70.535887 mm")))
sketch6.addConstraint(Sketcher.Constraint("DistanceY", 3, 3, -1, 1, Q("25.671844 mm")))
sketch6.setExpression("Constraints[5]", "Params.sketch6_diameter")
pocket3 = body.newObject("PartDesign::Pocket", "Pocket002")
pocket3.Profile = sketch6
pocket3.setExpression("Length", "Params.pocket3_length")
pocket3.Reversed = True
doc.recompute()

chamfer = body.newObject("PartDesign::Chamfer", "Chamfer")
chamfer.Base = (pocket3, edges_at(pocket3, [
    (-91.6, 1.252, 6),
    (-86.462, -14.49, 6),
    (-78.719, -32.943, 6),
    (-50.173, -34.454, 6),
    (-25.903, -34.443, 6),
    (-6.852, -32.533, 6),
    (41.172, -30.654, 6),
    (76.203, -28.31, 6),
    (78.547, 13.347, 6),
    (76.205, 55.003, 6),
    (-89.359, 55.103, 6),
    (-6.573, 57.396, 6),
    (-91.703, 25.989, 6),
]))
chamfer.setExpression("Size", "Params.chamfer_size")

# Sketch on an angled plane
sketch7 = body.newObject("Sketcher::SketchObject", "Sketch006")
sketch7.Placement = App.Placement(Vector(0.035814, 57.392321, 0), App.Rotation(Vector(0.999999805, -0.000624025, 0), Vector(0, 0, -0.999999999), Vector(0.000624025, 0.999999805, 0), "ZXY"))
add_polygon(sketch7, [(-81.193031, -1.152575), (-81.193031, -7.013936), (-62.3001, -7.013936), (-62.3001, -1.152575)])  # lines 0-3
sketch7.addConstraint(Sketcher.Constraint("Vertical", 0))
sketch7.addConstraint(Sketcher.Constraint("Horizontal", 1))
sketch7.addConstraint(Sketcher.Constraint("Vertical", 2))
sketch7.addConstraint(Sketcher.Constraint("Horizontal", 3))
sketch7.addConstraint(Sketcher.Constraint("DistanceX", 1, 1, 1, 2, Q("18.892931 mm")))
sketch7.addConstraint(Sketcher.Constraint("DistanceY", 0, 2, 0, 1, Q("5.861361 mm")))
sketch7.addConstraint(Sketcher.Constraint("DistanceX", 1, 2, -1, 1, Q("62.3001 mm")))
sketch7.addConstraint(Sketcher.Constraint("DistanceY", 0, 2, -1, 1, Q("7.013936 mm")))
pocket4 = body.newObject("PartDesign::Pocket", "Pocket003")
pocket4.Profile = sketch7
pocket4.setExpression("Length", "Params.pocket4_length")
doc.recompute()

fillet = body.newObject("PartDesign::Fillet", "Fillet")
fillet.Base = (pocket4, edges_at(pocket4, [(-62.266, 55.431, 6), (-81.158, 55.443, 6)]))
fillet.setExpression("Radius", "Params.fillet_radius")

# Sketch on YZ plane
sketch8 = body.newObject("Sketcher::SketchObject", "Sketch007")
sketch8.AttachmentSupport = (doc.getObject("YZ_Plane"), [""])
sketch8.MapMode = "FlatFace"
sketch8.AttachmentOffset = App.Placement(Vector(0, 0, -91.70344), App.Rotation())
add_polygon(sketch8, [(22.523103, 0.767263), (2.899293, 0.767263), (2.899293, 7.548835), (22.523103, 7.548835)])  # lines 0-3
sketch8.addConstraint(Sketcher.Constraint("Horizontal", 0))
sketch8.addConstraint(Sketcher.Constraint("Vertical", 1))
sketch8.addConstraint(Sketcher.Constraint("Horizontal", 2))
sketch8.addConstraint(Sketcher.Constraint("Vertical", 3))
sketch8.addConstraint(Sketcher.Constraint("DistanceX", 0, 2, 0, 1, Q("19.62381 mm")))
sketch8.addConstraint(Sketcher.Constraint("DistanceY", 1, 1, 1, 2, Q("6.781573 mm")))
sketch8.addConstraint(Sketcher.Constraint("DistanceX", -1, 1, 0, 2, Q("2.899293 mm")))
sketch8.addConstraint(Sketcher.Constraint("DistanceY", -1, 1, 0, 2, Q("0.767263 mm")))
pocket5 = body.newObject("PartDesign::Pocket", "Pocket004")
pocket5.Profile = sketch8
pocket5.setExpression("Length", "Params.pocket5_length")
pocket5.Reversed = True
doc.recompute()

fillet2 = body.newObject("PartDesign::Fillet", "Fillet001")
fillet2.Base = (pocket5, edges_at(pocket5, [(-89.703, 2.899, 6), (-89.703, 22.523, 6)]))
fillet2.setExpression("Radius", "Params.fillet2_radius")

# Sketch on XY plane
sketch9 = body.newObject("Sketcher::SketchObject", "Sketch008")
sketch9.AttachmentSupport = (doc.getObject("XY_Plane"), [""])
sketch9.MapMode = "FlatFace"
add_polygon(sketch9, [(-73.235502, 25.369345), (-73.235502, 9.408011), (-63.237743, 9.408011), (-63.237743, 25.369345)])  # lines 0-3
sketch9.addConstraint(Sketcher.Constraint("Vertical", 0))
sketch9.addConstraint(Sketcher.Constraint("Horizontal", 1))
sketch9.addConstraint(Sketcher.Constraint("Vertical", 2))
sketch9.addConstraint(Sketcher.Constraint("Horizontal", 3))
sketch9.addConstraint(Sketcher.Constraint("DistanceX", 1, 1, 1, 2, Q("9.997759 mm")))
sketch9.addConstraint(Sketcher.Constraint("DistanceX", 0, 2, -1, 1, Q("73.235502 mm")))
sketch9.addConstraint(Sketcher.Constraint("DistanceY", 0, 2, 0, 1, Q("15.961334 mm")))
sketch9.addConstraint(Sketcher.Constraint("DistanceY", -1, 1, 0, 2, Q("9.408011 mm")))
pocket6 = body.newObject("PartDesign::Pocket", "Pocket005")
pocket6.Profile = sketch9
pocket6.setExpression("Length", "Params.pocket6_length")

# Sketch on XY plane
sketch10 = body.newObject("Sketcher::SketchObject", "Sketch009")
sketch10.AttachmentSupport = (doc.getObject("XY_Plane"), [""])
sketch10.MapMode = "FlatFace"
sketch10.AttachmentOffset = App.Placement(Vector(0, 0, -5.5), App.Rotation())
add_polygon(sketch10, [(-57.624966, 35.016306), (-57.624966, 31.640179), (6.39577, 31.640179), (6.39577, 35.016306)])  # lines 0-3
sketch10.addConstraint(Sketcher.Constraint("Vertical", 0))
sketch10.addConstraint(Sketcher.Constraint("Horizontal", 1))
sketch10.addConstraint(Sketcher.Constraint("Vertical", 2))
sketch10.addConstraint(Sketcher.Constraint("Horizontal", 3))
sketch10.addConstraint(Sketcher.Constraint("DistanceX", 1, 1, 1, 2, Q("64.020736 mm")))
sketch10.addConstraint(Sketcher.Constraint("DistanceY", 0, 2, 0, 1, Q("3.376126 mm")))
sketch10.addConstraint(Sketcher.Constraint("DistanceY", -1, 1, 0, 2, Q("31.640179 mm")))
sketch10.addConstraint(Sketcher.Constraint("DistanceX", -1, 1, 1, 2, Q("6.39577 mm")))
pad4 = body.newObject("PartDesign::Pad", "Pad003")
pad4.Profile = sketch10
pad4.setExpression("Length", "Params.pad4_length")

# Sketch on XY plane
sketch11 = body.newObject("Sketcher::SketchObject", "Sketch010")
sketch11.AttachmentSupport = (doc.getObject("XY_Plane"), [""])
sketch11.MapMode = "FlatFace"
add_polygon(sketch11, [(-82.744925, 17.678852), (-82.744925, 0), (-57.624966, -7.605719), (-57.624966, -1.642143), (-76.04189, -1.642143), (-76.04189, 12.565198), (-73.235502, 12.565198), (-73.235502, 17.678852)])  # lines 0-7
sketch11.addConstraint(Sketcher.Constraint("Vertical", 0))
sketch11.addConstraint(Sketcher.Constraint("Vertical", 2))
sketch11.addConstraint(Sketcher.Constraint("Horizontal", 3))
sketch11.addConstraint(Sketcher.Constraint("Vertical", 4))
sketch11.addConstraint(Sketcher.Constraint("Horizontal", 5))
sketch11.addConstraint(Sketcher.Constraint("Vertical", 6))
sketch11.addConstraint(Sketcher.Constraint("Horizontal", 7))
sketch11.addConstraint(Sketcher.Constraint("PointOnObject", 0, 2, -1))
sketch11.addConstraint(Sketcher.Constraint("DistanceX", 5, 1, 5, 2, Q("2.806388 mm")))
sketch11.addConstraint(Sketcher.Constraint("DistanceY", 4, 1, 4, 2, Q("14.207341 mm")))
sketch11.addConstraint(Sketcher.Constraint("DistanceY", -1, 1, 4, 2, Q("12.565198 mm")))
sketch11.addConstraint(Sketcher.Constraint("DistanceX", 5, 2, -1, 1, Q("73.235502 mm")))
sketch11.addConstraint(Sketcher.Constraint("Distance", 1, Q("26.246129 mm")))
sketch11.addConstraint(Sketcher.Constraint("DistanceX", 3, 2, 3, 1, Q("18.416924 mm")))
sketch11.addConstraint(Sketcher.Constraint("DistanceX", 7, 2, 7, 1, Q("9.509423 mm")))
sketch11.addConstraint(Sketcher.Constraint("DistanceY", 0, 2, 0, 1, Q("17.678852 mm")))
pocket7 = body.newObject("PartDesign::Pocket", "Pocket006")
pocket7.Profile = sketch11
pocket7.setExpression("Length", "Params.pocket7_length")
doc.recompute()

chamfer2 = body.newObject("PartDesign::Chamfer", "Chamfer001")
chamfer2.Base = (pocket7, edges_at(pocket7, [(-82.745, 8.839, 0)]))
chamfer2.setExpression("Size", "Params.chamfer2_size")
doc.recompute()

chamfer3 = body.newObject("PartDesign::Chamfer", "Chamfer002")
chamfer3.Base = (chamfer2, edges_at(chamfer2, [(-78.99, 17.679, 0)]))
chamfer3.setExpression("Size", "Params.chamfer3_size")
doc.recompute()

chamfer4 = body.newObject("PartDesign::Chamfer", "Chamfer003")
chamfer4.Base = (chamfer3, edges_at(chamfer3, [(-71.185, -3.5, 0)]))
chamfer4.setExpression("Size", "Params.chamfer4_size")

doc.recompute()
